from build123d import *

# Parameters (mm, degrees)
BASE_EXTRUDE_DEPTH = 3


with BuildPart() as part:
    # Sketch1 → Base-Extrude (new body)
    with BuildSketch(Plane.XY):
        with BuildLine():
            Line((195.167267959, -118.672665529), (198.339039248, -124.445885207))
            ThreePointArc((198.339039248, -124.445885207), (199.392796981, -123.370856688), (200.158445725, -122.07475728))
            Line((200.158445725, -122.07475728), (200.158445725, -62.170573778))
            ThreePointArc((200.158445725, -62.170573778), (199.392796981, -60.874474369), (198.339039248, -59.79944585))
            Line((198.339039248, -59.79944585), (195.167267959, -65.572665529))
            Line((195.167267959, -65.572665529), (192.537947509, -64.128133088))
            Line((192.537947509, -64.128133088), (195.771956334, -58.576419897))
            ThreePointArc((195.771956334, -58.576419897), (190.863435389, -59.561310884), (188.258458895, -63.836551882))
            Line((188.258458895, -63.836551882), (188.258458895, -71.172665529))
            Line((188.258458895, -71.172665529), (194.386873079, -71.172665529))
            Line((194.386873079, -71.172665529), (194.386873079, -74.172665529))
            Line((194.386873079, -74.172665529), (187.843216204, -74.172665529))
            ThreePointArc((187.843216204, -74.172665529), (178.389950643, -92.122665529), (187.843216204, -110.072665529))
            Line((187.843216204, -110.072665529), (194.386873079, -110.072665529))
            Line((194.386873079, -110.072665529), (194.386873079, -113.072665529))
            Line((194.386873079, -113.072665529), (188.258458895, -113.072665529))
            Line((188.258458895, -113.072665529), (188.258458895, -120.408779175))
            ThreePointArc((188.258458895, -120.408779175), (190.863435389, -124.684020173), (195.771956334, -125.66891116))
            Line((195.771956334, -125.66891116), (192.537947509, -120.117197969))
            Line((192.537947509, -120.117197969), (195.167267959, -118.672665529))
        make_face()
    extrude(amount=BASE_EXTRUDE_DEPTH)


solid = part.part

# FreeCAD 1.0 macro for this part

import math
import FreeCAD as App
import Part
import Sketcher
from FreeCAD import Vector

doc = App.newDocument("Part")
body = doc.addObject("PartDesign::Body", "Body")

# Sketch on XY plane
sketch1 = body.newObject("Sketcher::SketchObject", "Sketch")
sketch1.AttachmentSupport = (doc.getObject("XY_Plane"), [""])
sketch1.MapMode = "FlatFace"
sketch1.addGeometry([
    Part.LineSegment(Vector(195.167268, -118.672666, 0), Vector(198.339039, -124.445885, 0)),  # 0
    Part.ArcOfCircle(Part.Circle(Vector(194.442193, -119.572174, 0), Vector(0, 0, 1), 6.24007), math.radians(-51.355406), math.radians(-23.643864)),  # 1
    Part.LineSegment(Vector(200.158446, -122.074757, 0), Vector(200.158446, -62.170574, 0)),  # 2
    Part.ArcOfCircle(Part.Circle(Vector(194.442193, -64.673157, 0), Vector(0, 0, 1), 6.24007), math.radians(23.643864), math.radians(51.355406)),  # 3
    Part.LineSegment(Vector(198.339039, -59.799446, 0), Vector(195.167268, -65.572666, 0)),  # 4
    Part.LineSegment(Vector(195.167268, -65.572666, 0), Vector(192.537948, -64.128133, 0)),  # 5
    Part.LineSegment(Vector(192.537948, -64.128133, 0), Vector(195.771956, -58.57642, 0)),  # 6
    Part.ArcOfCircle(Part.Circle(Vector(194.442193, -64.673157, 0), Vector(0, 0, 1), 6.24007), math.radians(77.695872), math.radians(172.295167)),  # 7
    Part.LineSegment(Vector(188.258459, -63.836552, 0), Vector(188.258459, -71.172666, 0)),  # 8
    Part.LineSegment(Vector(188.258459, -71.172666, 0), Vector(194.386873, -71.172666, 0)),  # 9
    Part.LineSegment(Vector(194.386873, -71.172666, 0), Vector(194.386873, -74.172666, 0)),  # 10
    Part.LineSegment(Vector(194.386873, -74.172666, 0), Vector(187.843216, -74.172666, 0)),  # 11
    Part.ArcOfCircle(Part.Circle(Vector(200.158446, -92.122666, 0), Vector(0, 0, 1), 21.768495), math.radians(124.453442), math.radians(235.546558)),  # 12
    Part.LineSegment(Vector(187.843216, -110.072666, 0), Vector(194.386873, -110.072666, 0)),  # 13
    Part.LineSegment(Vector(194.386873, -110.072666, 0), Vector(194.386873, -113.072666, 0)),  # 14
    Part.LineSegment(Vector(194.386873, -113.072666, 0), Vector(188.258459, -113.072666, 0)),  # 15
    Part.LineSegment(Vector(188.258459, -113.072666, 0), Vector(188.258459, -120.408779, 0)),  # 16
    Part.ArcOfCircle(Part.Circle(Vector(194.442193, -119.572174, 0), Vector(0, 0, 1), 6.24007), math.radians(-172.295167), math.radians(-77.695872)),  # 17
    Part.LineSegment(Vector(195.771956, -125.668911, 0), Vector(192.537948, -120.117198, 0)),  # 18
    Part.LineSegment(Vector(192.537948, -120.117198, 0), Vector(195.167268, -118.672666, 0)),  # 19
], False)
sketch1.addConstraint([
    Sketcher.Constraint("Coincident", 0, 2, 1, 1),
    Sketcher.Constraint("Coincident", 1, 2, 2, 1),
    Sketcher.Constraint("Coincident", 2, 2, 3, 1),
    Sketcher.Constraint("Coincident", 3, 2, 4, 1),
    Sketcher.Constraint("Coincident", 4, 2, 5, 1),
    Sketcher.Constraint("Coincident", 5, 2, 6, 1),
    Sketcher.Constraint("Coincident", 6, 2, 7, 1),
    Sketcher.Constraint("Coincident", 7, 2, 8, 1),
    Sketcher.Constraint("Coincident", 8, 2, 9, 1),
    Sketcher.Constraint("Coincident", 9, 2, 10, 1),
    Sketcher.Constraint("Coincident", 10, 2, 11, 1),
    Sketcher.Constraint("Coincident", 11, 2, 12, 1),
    Sketcher.Constraint("Coincident", 12, 2, 13, 1),
    Sketcher.Constraint("Coincident", 13, 2, 14, 1),
    Sketcher.Constraint("Coincident", 14, 2, 15, 1),
    Sketcher.Constraint("Coincident", 15, 2, 16, 1),
    Sketcher.Constraint("Coincident", 16, 2, 17, 1),
    Sketcher.Constraint("Coincident", 17, 2, 18, 1),
    Sketcher.Constraint("Coincident", 18, 2, 19, 1),
    Sketcher.Constraint("Coincident", 19, 2, 0, 1),
    Sketcher.Constraint("Vertical", 2),
    Sketcher.Constraint("Vertical", 8),
    Sketcher.Constraint("Horizontal", 9),
    Sketcher.Constraint("Vertical", 10),
    Sketcher.Constraint("Horizontal", 11),
    Sketcher.Constraint("Horizontal", 13),
    Sketcher.Constraint("Vertical", 14),
    Sketcher.Constraint("Horizontal", 15),
    Sketcher.Constraint("Vertical", 16),
    Sketcher.Constraint("Coincident", 7, 3, 3, 3),
    Sketcher.Constraint("Coincident", 17, 3, 1, 3),
    Sketcher.Constraint("DistanceY", 10, 2, 10, 1, 3.0),
    Sketcher.Constraint("DistanceY", 14, 2, 14, 1, 3.0),
    Sketcher.Constraint("Distance", 5, 3.0),
    Sketcher.Constraint("Distance", 19, 3.0),
    Sketcher.Constraint("DistanceY", 8, 2, 4, 2, 5.6),
    Sketcher.Constraint("DistanceY", 19, 2, 14, 2, 5.6),
    Sketcher.Constraint("Radius", 1, 6.24007),
    Sketcher.Constraint("Radius", 3, 6.24007),
    Sketcher.Constraint("Radius", 7, 6.24007),
    Sketcher.Constraint("Radius", 17, 6.24007),
    Sketcher.Constraint("DistanceY", 12, 3, 4, 2, 26.55),
    Sketcher.Constraint("DistanceY", 12, 2, 12, 3, 17.95),
    Sketcher.Constraint("Radius", 12, 21.768495),
    Sketcher.Constraint("DistanceY", 1, 2, 7, 3, 57.401601),
    Sketcher.Constraint("DistanceY", 17, 3, 2, 2, 57.401601),
    Sketcher.Constraint("DistanceX", 5, 2, 2, 2, 7.620498),
    Sketcher.Constraint("DistanceX", 9, 1, 9, 2, 6.128414),
    Sketcher.Constraint("DistanceX", 11, 2, 11, 1, 6.543657),
    Sketcher.Constraint("DistanceX", 13, 1, 13, 2, 6.543657),
    Sketcher.Constraint("DistanceX", 15, 2, 15, 1, 6.128414),
    Sketcher.Constraint("DistanceY", 2, 1, 2, 2, 59.904184),
    Sketcher.Constraint("DistanceY", 8, 2, 8, 1, 7.336114),
    Sketcher.Constraint("DistanceY", 16, 2, 16, 1, 7.336114),
    Sketcher.Constraint("DistanceX", -1, 1, 0, 2, 198.339039),
    Sketcher.Constraint("DistanceX", -1, 1, 3, 2, 198.339039),
    Sketcher.Constraint("DistanceY", 6, 2, -1, 1, 58.57642),
    Sketcher.Constraint("DistanceX", -1, 1, 7, 2, 188.258459),
    Sketcher.Constraint("DistanceY", 7, 2, -1, 1, 63.836552),
    Sketcher.Constraint("DistanceY", 17, 2, -1, 1, 125.668911),
    Sketcher.Constraint("DistanceX", 4, 2, 3, 2, 3.171771),
    Sketcher.Constraint("DistanceX", 16, 2, 18, 2, 4.279489),
    Sketcher.Constraint("DistanceY", 16, 2, 18, 2, 0.291581),
])
pad1 = body.newObject("PartDesign::Pad", "Pad")
pad1.Profile = sketch1
pad1.Length = 3

doc.recompute()
